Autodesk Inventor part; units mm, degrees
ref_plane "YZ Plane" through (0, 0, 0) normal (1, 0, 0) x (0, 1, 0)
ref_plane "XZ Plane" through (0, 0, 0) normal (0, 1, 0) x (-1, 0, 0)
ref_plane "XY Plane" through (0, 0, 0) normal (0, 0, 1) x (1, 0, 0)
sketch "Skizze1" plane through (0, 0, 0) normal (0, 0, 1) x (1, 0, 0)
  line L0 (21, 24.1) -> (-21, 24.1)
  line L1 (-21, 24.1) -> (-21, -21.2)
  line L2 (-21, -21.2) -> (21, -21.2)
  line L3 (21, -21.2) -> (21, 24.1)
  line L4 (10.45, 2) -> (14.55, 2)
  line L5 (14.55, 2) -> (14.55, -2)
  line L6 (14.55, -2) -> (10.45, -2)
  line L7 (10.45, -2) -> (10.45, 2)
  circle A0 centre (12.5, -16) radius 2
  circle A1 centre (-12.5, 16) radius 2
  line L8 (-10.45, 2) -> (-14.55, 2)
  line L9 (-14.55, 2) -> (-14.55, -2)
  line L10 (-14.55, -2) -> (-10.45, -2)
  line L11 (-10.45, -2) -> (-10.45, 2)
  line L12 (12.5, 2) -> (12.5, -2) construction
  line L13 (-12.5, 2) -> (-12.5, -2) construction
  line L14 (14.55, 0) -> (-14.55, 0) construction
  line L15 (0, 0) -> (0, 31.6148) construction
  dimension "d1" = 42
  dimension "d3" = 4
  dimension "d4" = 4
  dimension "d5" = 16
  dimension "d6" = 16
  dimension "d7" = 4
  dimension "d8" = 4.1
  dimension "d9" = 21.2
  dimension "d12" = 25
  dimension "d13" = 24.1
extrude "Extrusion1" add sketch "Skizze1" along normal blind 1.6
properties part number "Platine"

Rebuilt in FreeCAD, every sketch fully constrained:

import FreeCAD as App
import Part
import Sketcher
from FreeCAD import Vector
Q = App.Units.Quantity

doc = App.newDocument("Part")
body = doc.addObject("PartDesign::Body", "Body")

sketch1 = body.newObject("Sketcher::SketchObject", "Sketch")
sketch1.AttachmentSupport = (doc.getObject("XY_Plane"), [""])
sketch1.MapMode = "FlatFace"
sketch1.addGeometry(Part.LineSegment(Vector(21, -21.2, 0), Vector(21, 24.1, 0)), False)
sketch1.addGeometry(Part.LineSegment(Vector(21, 24.1, 0), Vector(-21, 24.1, 0)), False)
sketch1.addGeometry(Part.LineSegment(Vector(-21, 24.1, 0), Vector(-21, -21.2, 0)), False)
sketch1.addGeometry(Part.LineSegment(Vector(-21, -21.2, 0), Vector(21, -21.2, 0)), False)
sketch1.addGeometry(Part.LineSegment(Vector(-14.55, 2, 0), Vector(-10.45, 2, 0)), False)
sketch1.addGeometry(Part.LineSegment(Vector(-10.45, 2, 0), Vector(-10.45, -2, 0)), False)
sketch1.addGeometry(Part.LineSegment(Vector(-10.45, -2, 0), Vector(-14.55, -2, 0)), False)
sketch1.addGeometry(Part.LineSegment(Vector(-14.55, -2, 0), Vector(-14.55, 2, 0)), False)
sketch1.addGeometry(Part.Circle(Vector(12.5, -16, 0), Vector(0, 0, 1), 2), False)
sketch1.addGeometry(Part.LineSegment(Vector(10.45, -2, 0), Vector(10.45, 2, 0)), False)
sketch1.addGeometry(Part.LineSegment(Vector(10.45, 2, 0), Vector(14.55, 2, 0)), False)
sketch1.addGeometry(Part.LineSegment(Vector(14.55, 2, 0), Vector(14.55, -2, 0)), False)
sketch1.addGeometry(Part.LineSegment(Vector(14.55, -2, 0), Vector(10.45, -2, 0)), False)
sketch1.addGeometry(Part.Circle(Vector(-12.5, 16, 0), Vector(0, 0, 1), 2), False)
sketch1.addConstraint(Sketcher.Constraint("Coincident", 0, 2, 1, 1))
sketch1.addConstraint(Sketcher.Constraint("Coincident", 1, 2, 2, 1))
sketch1.addConstraint(Sketcher.Constraint("Coincident", 2, 2, 3, 1))
sketch1.addConstraint(Sketcher.Constraint("Coincident", 3, 2, 0, 1))
sketch1.addConstraint(Sketcher.Constraint("Coincident", 4, 2, 5, 1))
sketch1.addConstraint(Sketcher.Constraint("Coincident", 5, 2, 6, 1))
sketch1.addConstraint(Sketcher.Constraint("Coincident", 6, 2, 7, 1))
sketch1.addConstraint(Sketcher.Constraint("Coincident", 7, 2, 4, 1))
sketch1.addConstraint(Sketcher.Constraint("Coincident", 9, 2, 10, 1))
sketch1.addConstraint(Sketcher.Constraint("Coincident", 10, 2, 11, 1))
sketch1.addConstraint(Sketcher.Constraint("Coincident", 11, 2, 12, 1))
sketch1.addConstraint(Sketcher.Constraint("Coincident", 12, 2, 9, 1))
sketch1.addConstraint(Sketcher.Constraint("Vertical", 0))
sketch1.addConstraint(Sketcher.Constraint("Horizontal", 1))
sketch1.addConstraint(Sketcher.Constraint("Vertical", 2))
sketch1.addConstraint(Sketcher.Constraint("Horizontal", 3))
sketch1.addConstraint(Sketcher.Constraint("Horizontal", 4))
sketch1.addConstraint(Sketcher.Constraint("Vertical", 5))
sketch1.addConstraint(Sketcher.Constraint("Horizontal", 6))
sketch1.addConstraint(Sketcher.Constraint("Vertical", 7))
sketch1.addConstraint(Sketcher.Constraint("Vertical", 9))
sketch1.addConstraint(Sketcher.Constraint("Horizontal", 10))
sketch1.addConstraint(Sketcher.Constraint("Vertical", 11))
sketch1.addConstraint(Sketcher.Constraint("Horizontal", 12))
sketch1.addConstraint(Sketcher.Constraint("Equal", 8, 13))
sketch1.addConstraint(Sketcher.Constraint("Symmetric", 8, 3, 13, 3, -1, 1))
sketch1.addConstraint(Sketcher.Constraint("Symmetric", 5, 2, 9, 2, -1, 1))
sketch1.addConstraint(Sketcher.Constraint("Symmetric", 7, 2, 11, 2, -1, 1))
sketch1.addConstraint(Sketcher.Constraint("Horizontal", 7, 2, 9, 2))
sketch1.addConstraint(Sketcher.Constraint("Diameter", 8, Q("4 mm")))
sketch1.addConstraint(Sketcher.Constraint("DistanceX", 1, 2, 1, 1, Q("42 mm")))
sketch1.addConstraint(Sketcher.Constraint("DistanceY", 5, 2, 5, 1, Q("4 mm")))
sketch1.addConstraint(Sketcher.Constraint("DistanceX", 4, 1, 4, 2, Q("4.1 mm")))
sketch1.addConstraint(Sketcher.Constraint("DistanceY", 8, 3, -1, 1, Q("16 mm")))
sketch1.addConstraint(Sketcher.Constraint("DistanceX", 13, 3, 8, 3, Q("25 mm")))
sketch1.addConstraint(Sketcher.Constraint("DistanceX", 7, 2, 9, 2, Q("25 mm")))
sketch1.addConstraint(Sketcher.Constraint("DistanceY", -1, 1, 0, 2, Q("24.1 mm")))
sketch1.addConstraint(Sketcher.Constraint("DistanceY", 2, 2, -1, 1, Q("21.2 mm")))
sketch1.addConstraint(Sketcher.Constraint("DistanceX", -1, 1, 0, 2, Q("21 mm")))
pad1 = body.newObject("PartDesign::Pad", "Pad")
pad1.Profile = sketch1
pad1.Length = 1.6

doc.recompute()
